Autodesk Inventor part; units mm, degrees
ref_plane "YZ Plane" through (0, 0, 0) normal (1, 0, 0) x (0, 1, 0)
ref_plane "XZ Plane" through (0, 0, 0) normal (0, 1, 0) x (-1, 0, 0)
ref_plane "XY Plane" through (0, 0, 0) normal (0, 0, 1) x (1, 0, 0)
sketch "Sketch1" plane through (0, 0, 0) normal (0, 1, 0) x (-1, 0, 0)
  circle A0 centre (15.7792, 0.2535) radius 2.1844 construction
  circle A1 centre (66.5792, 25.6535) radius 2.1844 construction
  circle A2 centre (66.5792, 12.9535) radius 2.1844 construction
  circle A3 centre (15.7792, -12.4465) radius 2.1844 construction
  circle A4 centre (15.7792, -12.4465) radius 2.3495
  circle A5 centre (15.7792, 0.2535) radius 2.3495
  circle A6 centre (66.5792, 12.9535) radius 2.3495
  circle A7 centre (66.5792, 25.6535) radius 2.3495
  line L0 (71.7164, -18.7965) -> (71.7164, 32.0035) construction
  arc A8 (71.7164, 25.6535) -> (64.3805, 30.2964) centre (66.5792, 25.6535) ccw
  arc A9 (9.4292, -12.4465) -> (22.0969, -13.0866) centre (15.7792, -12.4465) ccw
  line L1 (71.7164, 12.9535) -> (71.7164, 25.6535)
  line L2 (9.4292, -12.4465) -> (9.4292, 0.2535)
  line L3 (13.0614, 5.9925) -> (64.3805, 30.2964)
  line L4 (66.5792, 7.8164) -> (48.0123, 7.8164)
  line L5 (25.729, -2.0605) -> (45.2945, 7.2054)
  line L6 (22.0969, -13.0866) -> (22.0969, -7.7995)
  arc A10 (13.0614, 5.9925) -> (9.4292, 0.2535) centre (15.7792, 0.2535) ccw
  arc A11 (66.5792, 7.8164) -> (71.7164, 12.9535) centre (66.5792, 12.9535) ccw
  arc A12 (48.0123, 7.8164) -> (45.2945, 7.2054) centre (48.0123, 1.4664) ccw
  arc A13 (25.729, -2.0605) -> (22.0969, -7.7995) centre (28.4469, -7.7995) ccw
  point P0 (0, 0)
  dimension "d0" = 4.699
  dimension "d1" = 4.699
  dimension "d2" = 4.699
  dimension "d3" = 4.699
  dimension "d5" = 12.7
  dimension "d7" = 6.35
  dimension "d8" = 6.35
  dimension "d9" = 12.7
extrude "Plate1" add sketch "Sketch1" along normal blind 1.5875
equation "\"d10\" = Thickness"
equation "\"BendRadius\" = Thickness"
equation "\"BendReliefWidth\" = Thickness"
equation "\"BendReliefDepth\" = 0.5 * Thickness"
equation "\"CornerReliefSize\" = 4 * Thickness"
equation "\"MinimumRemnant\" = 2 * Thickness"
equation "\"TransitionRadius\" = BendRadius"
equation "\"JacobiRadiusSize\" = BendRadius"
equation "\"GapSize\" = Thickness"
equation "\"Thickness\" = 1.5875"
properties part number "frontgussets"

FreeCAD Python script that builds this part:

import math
import FreeCAD as App
import Part
import Sketcher

V = App.Vector
Q = App.Units.Quantity

doc = App.newDocument("Part")
body = doc.addObject("PartDesign::Body", "Body")

sketch1 = doc.addObject("Sketcher::SketchObject", "Sketch")
body.addObject(sketch1)
sketch1.AttachmentSupport = (doc.XZ_Plane, [""])
sketch1.MapMode = "FlatFace"
sketch1.addGeometry([
    Part.LineSegment(V(-71.7164, 12.9535, 0), V(-71.7164, 25.6535, 0)),
    Part.ArcOfCircle(Part.Circle(V(-66.5792, 25.6535, 0), V(0, 0, 1), 5.1372), math.radians(64.659553), math.radians(180)),
    Part.LineSegment(V(-64.3805, 30.2964, 0), V(-13.0614, 5.9925, 0)),
    Part.ArcOfCircle(Part.Circle(V(-15.7792, 0.2535, 0), V(0, 0, 1), 6.350005), math.radians(0), math.radians(64.659318)),
    Part.LineSegment(V(-9.4292, 0.2535, 0), V(-9.4292, -12.4465, 0)),
    Part.ArcOfCircle(Part.Circle(V(-15.7792, -12.4465, 0), V(0, 0, 1), 6.35), math.radians(-174.214619), math.radians(0)),
    Part.LineSegment(V(-22.0969, -13.0866, 0), V(-22.0969, -7.7995, 0)),
    Part.ArcOfCircle(Part.Circle(V(-28.4469, -7.7995, 0), V(0, 0, 1), 6.350047), math.radians(0), math.radians(64.658502)),
    Part.LineSegment(V(-25.729, -2.0605, 0), V(-45.2945, 7.2054, 0)),
    Part.ArcOfCircle(Part.Circle(V(-48.0123, 1.4664, 0), V(0, 0, 1), 6.35), math.radians(64.659318), math.radians(90)),
    Part.LineSegment(V(-48.0123, 7.8164, 0), V(-66.5792, 7.8164, 0)),
    Part.ArcOfCircle(Part.Circle(V(-66.5792, 12.9535, 0), V(0, 0, 1), 5.1371), math.radians(180), math.radians(270)),
    Part.Circle(V(-15.7792, -12.4465, 0), V(0, 0, 1), 2.3495),
    Part.Circle(V(-15.7792, 0.2535, 0), V(0, 0, 1), 2.3495),
    Part.Circle(V(-66.5792, 12.9535, 0), V(0, 0, 1), 2.3495),
    Part.Circle(V(-66.5792, 25.6535, 0), V(0, 0, 1), 2.3495),
], False)
sketch1.addConstraint([
    Sketcher.Constraint("Coincident", 0, 2, 1, 2),
    Sketcher.Constraint("Coincident", 1, 1, 2, 1),
    Sketcher.Constraint("Coincident", 2, 2, 3, 2),
    Sketcher.Constraint("Coincident", 3, 1, 4, 1),
    Sketcher.Constraint("Coincident", 4, 2, 5, 2),
    Sketcher.Constraint("Coincident", 5, 1, 6, 1),
    Sketcher.Constraint("Coincident", 6, 2, 7, 1),
    Sketcher.Constraint("Coincident", 7, 2, 8, 1),
    Sketcher.Constraint("Coincident", 8, 2, 9, 1),
    Sketcher.Constraint("Coincident", 9, 2, 10, 1),
    Sketcher.Constraint("Coincident", 10, 2, 11, 2),
    Sketcher.Constraint("Coincident", 11, 1, 0, 1),
    Sketcher.Constraint("Vertical", 0),
    Sketcher.Constraint("Vertical", 4),
    Sketcher.Constraint("Vertical", 6),
    Sketcher.Constraint("Horizontal", 10),
    Sketcher.Constraint("Coincident", 12, 3, 5, 3),
    Sketcher.Constraint("Coincident", 13, 3, 3, 3),
    Sketcher.Constraint("Coincident", 14, 3, 11, 3),
    Sketcher.Constraint("Coincident", 15, 3, 1, 3),
    Sketcher.Constraint("Radius", 3, Q("0.25 in")),
    Sketcher.Constraint("Radius", 5, Q("0.25 in")),
    Sketcher.Constraint("Radius", 7, Q("0.25 in")),
    Sketcher.Constraint("Radius", 9, Q("0.25 in")),
    Sketcher.Constraint("Diameter", 12, Q("0.185 in")),
    Sketcher.Constraint("Diameter", 13, Q("0.185 in")),
    Sketcher.Constraint("Diameter", 14, Q("0.185 in")),
    Sketcher.Constraint("Diameter", 15, Q("0.185 in")),
    Sketcher.Constraint("DistanceY", 0, 1, 0, 2, Q("0.5 in")),
    Sketcher.Constraint("DistanceY", 4, 2, 4, 1, Q("0.5 in")),
    Sketcher.Constraint("DistanceY", 5, 3, 3, 3, Q("0.5 in")),
    Sketcher.Constraint("DistanceY", 11, 3, 1, 3, Q("0.5 in")),
    Sketcher.Constraint("DistanceY", 3, 3, 11, 3, Q("0.5 in")),
    Sketcher.Constraint("DistanceY", 11, 3, 0, 2, Q("0.5 in")),
    Sketcher.Constraint("DistanceY", 5, 3, 3, 1, Q("0.5 in")),
    Sketcher.Constraint("DistanceX", 1, 3, 3, 3, Q("2 in")),
    Sketcher.Constraint("DistanceX", 11, 3, 3, 3, Q("2 in")),
    Sketcher.Constraint("Radius", 1, Q("5.1372 mm")),
    Sketcher.Constraint("DistanceX", 3, 3, 2, 2, Q("0.107 in")),
    Sketcher.Constraint("DistanceY", 7, 3, 2, 2, Q("0.543 in")),
    Sketcher.Constraint("DistanceX", 7, 3, 7, 2, Q("0.107 in")),
    Sketcher.Constraint("DistanceX", 9, 3, 8, 2, Q("0.107 in")),
    Sketcher.Constraint("DistanceX", 9, 2, 8, 2, Q("0.107 in")),
    Sketcher.Constraint("Distance", 8, Q("0.8523 in")),
    Sketcher.Constraint("DistanceX", 10, 2, 10, 1, Q("18.567 mm")),
    Sketcher.Constraint("DistanceY", 6, 1, 6, 2, Q("5.287 mm")),
    Sketcher.Constraint("DistanceY", 1, 3, 1, 1, Q("0.1828 in")),
    Sketcher.Constraint("DistanceY", 5, 1, 5, 3, Q("0.0252 in")),
    Sketcher.Constraint("DistanceX", 1, 3, -1, 1, Q("66.5792 mm")),
    Sketcher.Constraint("DistanceY", -1, 1, 1, 3, Q("25.6535 mm")),
])
pad1 = doc.addObject("PartDesign::Pad", "Pad")
body.addObject(pad1)
pad1.Profile = sketch1
pad1.Length = Q("0.0625 in")
pad1.Reversed = True

doc.recompute()
